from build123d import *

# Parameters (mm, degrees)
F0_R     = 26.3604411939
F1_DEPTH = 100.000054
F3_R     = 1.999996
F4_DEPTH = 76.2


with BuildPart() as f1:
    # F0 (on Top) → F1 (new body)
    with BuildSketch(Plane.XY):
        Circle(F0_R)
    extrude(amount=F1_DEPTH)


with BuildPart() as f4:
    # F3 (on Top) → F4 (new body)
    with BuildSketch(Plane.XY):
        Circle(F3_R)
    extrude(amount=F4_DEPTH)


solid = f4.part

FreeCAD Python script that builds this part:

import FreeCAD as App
import Part
import Sketcher

doc = App.newDocument("Part")
params = doc.addObject("Spreadsheet::Sheet", "Params")
for row, (alias, value) in enumerate([
    ("pad1_length", "100.000054 mm"),
    ("pad2_length", "3 in"),
], start=1):
    params.set(f"A{row}", alias)
    params.set(f"B{row}", "=" + value)
    params.setAlias(f"B{row}", alias)

body = doc.addObject("PartDesign::Body", "Body")

# Sketch on XY plane
sketch1 = doc.addObject("Sketcher::SketchObject", "Sketch")
body.addObject(sketch1)
sketch1.AttachmentSupport = (doc.XY_Plane, [""])
sketch1.MapMode = "FlatFace"
sketch1.addGeometry(Part.Circle(App.Vector(0, 0, 0), App.Vector(0, 0, 1), 26), False)
sketch1.addConstraint(Sketcher.Constraint("Coincident", 0, 3, -1, 1))
sketch1.addConstraint(Sketcher.Constraint("Diameter", 0, 52.720882))
pad1 = doc.addObject("PartDesign::Pad", "Pad")
body.addObject(pad1)
pad1.Profile = sketch1
pad1.setExpression("Length", "Params.pad1_length")
body2 = doc.addObject("PartDesign::Body", "Body001")

# Sketch on XY plane
sketch2 = doc.addObject("Sketcher::SketchObject", "Sketch001")
body2.addObject(sketch2)
sketch2.AttachmentSupport = (doc.getObject("XY_Plane001"), [""])
sketch2.MapMode = "FlatFace"
sketch2.addGeometry(Part.Circle(App.Vector(0, 0, 0), App.Vector(0, 0, 1), 2), False)
sketch2.addConstraint(Sketcher.Constraint("Coincident", 0, 3, -1, 1))
sketch2.addConstraint(Sketcher.Constraint("Diameter", 0, 3.999992))
pad2 = doc.addObject("PartDesign::Pad", "Pad001")
body2.addObject(pad2)
pad2.Profile = sketch2
pad2.setExpression("Length", "Params.pad2_length")
body.Visibility = False

doc.recompute()
